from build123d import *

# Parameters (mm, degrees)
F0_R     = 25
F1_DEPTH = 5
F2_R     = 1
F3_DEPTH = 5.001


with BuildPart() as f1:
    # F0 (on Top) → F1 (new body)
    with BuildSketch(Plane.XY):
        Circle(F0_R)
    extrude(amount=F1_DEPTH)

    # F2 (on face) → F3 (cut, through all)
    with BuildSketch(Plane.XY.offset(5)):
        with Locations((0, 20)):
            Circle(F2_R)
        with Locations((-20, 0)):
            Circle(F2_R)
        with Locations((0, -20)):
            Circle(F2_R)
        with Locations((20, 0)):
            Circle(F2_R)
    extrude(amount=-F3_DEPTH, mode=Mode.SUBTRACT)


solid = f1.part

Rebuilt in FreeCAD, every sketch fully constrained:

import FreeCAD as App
import Part
import Sketcher

V = App.Vector
Q = App.Units.Quantity

doc = App.newDocument("Part")
body = doc.addObject("PartDesign::Body", "Body")

# Sketch on XY plane
sketch1 = doc.addObject("Sketcher::SketchObject", "Sketch")
body.addObject(sketch1)
sketch1.AttachmentSupport = (doc.XY_Plane, [""])
sketch1.MapMode = "FlatFace"
sketch1.addGeometry(Part.Circle(V(0, 0, 0), V(0, 0, 1), 25), False)
sketch1.addConstraint([
    Sketcher.Constraint("Coincident", 0, 3, -1, 1),
    Sketcher.Constraint("Diameter", 0, Q("50 mm")),
])
pad1 = doc.addObject("PartDesign::Pad", "Pad")
body.addObject(pad1)
pad1.Profile = sketch1
pad1.Length = 5

# Sketch on XY plane
sketch2 = doc.addObject("Sketcher::SketchObject", "Sketch001")
body.addObject(sketch2)
sketch2.AttachmentSupport = (doc.XY_Plane, [""])
sketch2.MapMode = "FlatFace"
sketch2.AttachmentOffset = App.Placement(V(0, 0, 5), App.Rotation())
sketch2.addGeometry([
    Part.Circle(V(0, 20, 0), V(0, 0, 1), 1),
    Part.Circle(V(-20, 0, 0), V(0, 0, 1), 1),
    Part.Circle(V(0, -20, 0), V(0, 0, 1), 1),
    Part.Circle(V(20, 0, 0), V(0, 0, 1), 1),
], False)
sketch2.addConstraint([
    Sketcher.Constraint("Equal", 0, 1),
    Sketcher.Constraint("Equal", 1, 2),
    Sketcher.Constraint("Equal", 2, 3),
    Sketcher.Constraint("Symmetric", 0, 3, 2, 3, -1, 1),
    Sketcher.Constraint("Symmetric", 1, 3, 3, 3, -1, 1),
    Sketcher.Constraint("PointOnObject", 0, 3, -2),
    Sketcher.Constraint("PointOnObject", 1, 3, -1),
    Sketcher.Constraint("Diameter", 0, Q("2 mm")),
    Sketcher.Constraint("DistanceY", -1, 1, 0, 3, Q("20 mm")),
    Sketcher.Constraint("DistanceX", 1, 3, -1, 1, Q("20 mm")),
])
pocket1 = doc.addObject("PartDesign::Pocket", "Pocket")
body.addObject(pocket1)
pocket1.Profile = sketch2
pocket1.Type = "ThroughAll"

doc.recompute()
